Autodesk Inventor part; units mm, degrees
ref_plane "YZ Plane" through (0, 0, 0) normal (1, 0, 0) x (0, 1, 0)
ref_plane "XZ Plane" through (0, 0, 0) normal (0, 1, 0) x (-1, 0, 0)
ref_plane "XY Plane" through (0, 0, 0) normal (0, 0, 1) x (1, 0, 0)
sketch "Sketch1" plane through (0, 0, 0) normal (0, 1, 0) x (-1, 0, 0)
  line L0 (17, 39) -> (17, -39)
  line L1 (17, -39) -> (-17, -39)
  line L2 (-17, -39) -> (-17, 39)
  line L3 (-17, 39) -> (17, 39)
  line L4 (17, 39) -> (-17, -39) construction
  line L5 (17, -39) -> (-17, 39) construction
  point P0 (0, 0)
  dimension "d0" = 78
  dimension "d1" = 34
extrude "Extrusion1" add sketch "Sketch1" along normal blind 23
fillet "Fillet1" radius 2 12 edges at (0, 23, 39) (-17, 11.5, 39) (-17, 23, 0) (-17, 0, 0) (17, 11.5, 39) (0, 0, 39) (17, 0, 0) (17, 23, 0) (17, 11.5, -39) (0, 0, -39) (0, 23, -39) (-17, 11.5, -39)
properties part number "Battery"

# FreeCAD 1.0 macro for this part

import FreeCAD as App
import Part
import Sketcher

V = App.Vector
Q = App.Units.Quantity

doc = App.newDocument("Part")
body = doc.addObject("PartDesign::Body", "Body")

# Sketch on XZ plane
sketch1 = doc.addObject("Sketcher::SketchObject", "Sketch")
body.addObject(sketch1)
sketch1.AttachmentSupport = (doc.XZ_Plane, [""])
sketch1.MapMode = "FlatFace"
sketch1.addGeometry(Part.LineSegment(V(-17, -39, 0), V(-17, 39, 0)), False)
sketch1.addGeometry(Part.LineSegment(V(-17, 39, 0), V(17, 39, 0)), False)
sketch1.addGeometry(Part.LineSegment(V(17, 39, 0), V(17, -39, 0)), False)
sketch1.addGeometry(Part.LineSegment(V(17, -39, 0), V(-17, -39, 0)), False)
sketch1.addConstraint(Sketcher.Constraint("Coincident", 0, 2, 1, 1))
sketch1.addConstraint(Sketcher.Constraint("Coincident", 1, 2, 2, 1))
sketch1.addConstraint(Sketcher.Constraint("Coincident", 2, 2, 3, 1))
sketch1.addConstraint(Sketcher.Constraint("Coincident", 3, 2, 0, 1))
sketch1.addConstraint(Sketcher.Constraint("Vertical", 0))
sketch1.addConstraint(Sketcher.Constraint("Horizontal", 1))
sketch1.addConstraint(Sketcher.Constraint("Vertical", 2))
sketch1.addConstraint(Sketcher.Constraint("Horizontal", 3))
sketch1.addConstraint(Sketcher.Constraint("Symmetric", 0, 2, 2, 2, -1, 1))
sketch1.addConstraint(Sketcher.Constraint("DistanceX", 1, 1, 1, 2, Q("34 mm")))
sketch1.addConstraint(Sketcher.Constraint("DistanceY", 0, 1, 0, 2, Q("78 mm")))
pad1 = doc.addObject("PartDesign::Pad", "Pad")
body.addObject(pad1)
pad1.Profile = sketch1
pad1.Length = 23
pad1.Reversed = True
doc.recompute()

fillet = doc.addObject("PartDesign::Fillet", "Fillet")
body.addObject(fillet)
fillet.Base = (pad1, ["Edge1"])
fillet.UseAllEdges = True
fillet.Radius = 2

doc.recompute()
